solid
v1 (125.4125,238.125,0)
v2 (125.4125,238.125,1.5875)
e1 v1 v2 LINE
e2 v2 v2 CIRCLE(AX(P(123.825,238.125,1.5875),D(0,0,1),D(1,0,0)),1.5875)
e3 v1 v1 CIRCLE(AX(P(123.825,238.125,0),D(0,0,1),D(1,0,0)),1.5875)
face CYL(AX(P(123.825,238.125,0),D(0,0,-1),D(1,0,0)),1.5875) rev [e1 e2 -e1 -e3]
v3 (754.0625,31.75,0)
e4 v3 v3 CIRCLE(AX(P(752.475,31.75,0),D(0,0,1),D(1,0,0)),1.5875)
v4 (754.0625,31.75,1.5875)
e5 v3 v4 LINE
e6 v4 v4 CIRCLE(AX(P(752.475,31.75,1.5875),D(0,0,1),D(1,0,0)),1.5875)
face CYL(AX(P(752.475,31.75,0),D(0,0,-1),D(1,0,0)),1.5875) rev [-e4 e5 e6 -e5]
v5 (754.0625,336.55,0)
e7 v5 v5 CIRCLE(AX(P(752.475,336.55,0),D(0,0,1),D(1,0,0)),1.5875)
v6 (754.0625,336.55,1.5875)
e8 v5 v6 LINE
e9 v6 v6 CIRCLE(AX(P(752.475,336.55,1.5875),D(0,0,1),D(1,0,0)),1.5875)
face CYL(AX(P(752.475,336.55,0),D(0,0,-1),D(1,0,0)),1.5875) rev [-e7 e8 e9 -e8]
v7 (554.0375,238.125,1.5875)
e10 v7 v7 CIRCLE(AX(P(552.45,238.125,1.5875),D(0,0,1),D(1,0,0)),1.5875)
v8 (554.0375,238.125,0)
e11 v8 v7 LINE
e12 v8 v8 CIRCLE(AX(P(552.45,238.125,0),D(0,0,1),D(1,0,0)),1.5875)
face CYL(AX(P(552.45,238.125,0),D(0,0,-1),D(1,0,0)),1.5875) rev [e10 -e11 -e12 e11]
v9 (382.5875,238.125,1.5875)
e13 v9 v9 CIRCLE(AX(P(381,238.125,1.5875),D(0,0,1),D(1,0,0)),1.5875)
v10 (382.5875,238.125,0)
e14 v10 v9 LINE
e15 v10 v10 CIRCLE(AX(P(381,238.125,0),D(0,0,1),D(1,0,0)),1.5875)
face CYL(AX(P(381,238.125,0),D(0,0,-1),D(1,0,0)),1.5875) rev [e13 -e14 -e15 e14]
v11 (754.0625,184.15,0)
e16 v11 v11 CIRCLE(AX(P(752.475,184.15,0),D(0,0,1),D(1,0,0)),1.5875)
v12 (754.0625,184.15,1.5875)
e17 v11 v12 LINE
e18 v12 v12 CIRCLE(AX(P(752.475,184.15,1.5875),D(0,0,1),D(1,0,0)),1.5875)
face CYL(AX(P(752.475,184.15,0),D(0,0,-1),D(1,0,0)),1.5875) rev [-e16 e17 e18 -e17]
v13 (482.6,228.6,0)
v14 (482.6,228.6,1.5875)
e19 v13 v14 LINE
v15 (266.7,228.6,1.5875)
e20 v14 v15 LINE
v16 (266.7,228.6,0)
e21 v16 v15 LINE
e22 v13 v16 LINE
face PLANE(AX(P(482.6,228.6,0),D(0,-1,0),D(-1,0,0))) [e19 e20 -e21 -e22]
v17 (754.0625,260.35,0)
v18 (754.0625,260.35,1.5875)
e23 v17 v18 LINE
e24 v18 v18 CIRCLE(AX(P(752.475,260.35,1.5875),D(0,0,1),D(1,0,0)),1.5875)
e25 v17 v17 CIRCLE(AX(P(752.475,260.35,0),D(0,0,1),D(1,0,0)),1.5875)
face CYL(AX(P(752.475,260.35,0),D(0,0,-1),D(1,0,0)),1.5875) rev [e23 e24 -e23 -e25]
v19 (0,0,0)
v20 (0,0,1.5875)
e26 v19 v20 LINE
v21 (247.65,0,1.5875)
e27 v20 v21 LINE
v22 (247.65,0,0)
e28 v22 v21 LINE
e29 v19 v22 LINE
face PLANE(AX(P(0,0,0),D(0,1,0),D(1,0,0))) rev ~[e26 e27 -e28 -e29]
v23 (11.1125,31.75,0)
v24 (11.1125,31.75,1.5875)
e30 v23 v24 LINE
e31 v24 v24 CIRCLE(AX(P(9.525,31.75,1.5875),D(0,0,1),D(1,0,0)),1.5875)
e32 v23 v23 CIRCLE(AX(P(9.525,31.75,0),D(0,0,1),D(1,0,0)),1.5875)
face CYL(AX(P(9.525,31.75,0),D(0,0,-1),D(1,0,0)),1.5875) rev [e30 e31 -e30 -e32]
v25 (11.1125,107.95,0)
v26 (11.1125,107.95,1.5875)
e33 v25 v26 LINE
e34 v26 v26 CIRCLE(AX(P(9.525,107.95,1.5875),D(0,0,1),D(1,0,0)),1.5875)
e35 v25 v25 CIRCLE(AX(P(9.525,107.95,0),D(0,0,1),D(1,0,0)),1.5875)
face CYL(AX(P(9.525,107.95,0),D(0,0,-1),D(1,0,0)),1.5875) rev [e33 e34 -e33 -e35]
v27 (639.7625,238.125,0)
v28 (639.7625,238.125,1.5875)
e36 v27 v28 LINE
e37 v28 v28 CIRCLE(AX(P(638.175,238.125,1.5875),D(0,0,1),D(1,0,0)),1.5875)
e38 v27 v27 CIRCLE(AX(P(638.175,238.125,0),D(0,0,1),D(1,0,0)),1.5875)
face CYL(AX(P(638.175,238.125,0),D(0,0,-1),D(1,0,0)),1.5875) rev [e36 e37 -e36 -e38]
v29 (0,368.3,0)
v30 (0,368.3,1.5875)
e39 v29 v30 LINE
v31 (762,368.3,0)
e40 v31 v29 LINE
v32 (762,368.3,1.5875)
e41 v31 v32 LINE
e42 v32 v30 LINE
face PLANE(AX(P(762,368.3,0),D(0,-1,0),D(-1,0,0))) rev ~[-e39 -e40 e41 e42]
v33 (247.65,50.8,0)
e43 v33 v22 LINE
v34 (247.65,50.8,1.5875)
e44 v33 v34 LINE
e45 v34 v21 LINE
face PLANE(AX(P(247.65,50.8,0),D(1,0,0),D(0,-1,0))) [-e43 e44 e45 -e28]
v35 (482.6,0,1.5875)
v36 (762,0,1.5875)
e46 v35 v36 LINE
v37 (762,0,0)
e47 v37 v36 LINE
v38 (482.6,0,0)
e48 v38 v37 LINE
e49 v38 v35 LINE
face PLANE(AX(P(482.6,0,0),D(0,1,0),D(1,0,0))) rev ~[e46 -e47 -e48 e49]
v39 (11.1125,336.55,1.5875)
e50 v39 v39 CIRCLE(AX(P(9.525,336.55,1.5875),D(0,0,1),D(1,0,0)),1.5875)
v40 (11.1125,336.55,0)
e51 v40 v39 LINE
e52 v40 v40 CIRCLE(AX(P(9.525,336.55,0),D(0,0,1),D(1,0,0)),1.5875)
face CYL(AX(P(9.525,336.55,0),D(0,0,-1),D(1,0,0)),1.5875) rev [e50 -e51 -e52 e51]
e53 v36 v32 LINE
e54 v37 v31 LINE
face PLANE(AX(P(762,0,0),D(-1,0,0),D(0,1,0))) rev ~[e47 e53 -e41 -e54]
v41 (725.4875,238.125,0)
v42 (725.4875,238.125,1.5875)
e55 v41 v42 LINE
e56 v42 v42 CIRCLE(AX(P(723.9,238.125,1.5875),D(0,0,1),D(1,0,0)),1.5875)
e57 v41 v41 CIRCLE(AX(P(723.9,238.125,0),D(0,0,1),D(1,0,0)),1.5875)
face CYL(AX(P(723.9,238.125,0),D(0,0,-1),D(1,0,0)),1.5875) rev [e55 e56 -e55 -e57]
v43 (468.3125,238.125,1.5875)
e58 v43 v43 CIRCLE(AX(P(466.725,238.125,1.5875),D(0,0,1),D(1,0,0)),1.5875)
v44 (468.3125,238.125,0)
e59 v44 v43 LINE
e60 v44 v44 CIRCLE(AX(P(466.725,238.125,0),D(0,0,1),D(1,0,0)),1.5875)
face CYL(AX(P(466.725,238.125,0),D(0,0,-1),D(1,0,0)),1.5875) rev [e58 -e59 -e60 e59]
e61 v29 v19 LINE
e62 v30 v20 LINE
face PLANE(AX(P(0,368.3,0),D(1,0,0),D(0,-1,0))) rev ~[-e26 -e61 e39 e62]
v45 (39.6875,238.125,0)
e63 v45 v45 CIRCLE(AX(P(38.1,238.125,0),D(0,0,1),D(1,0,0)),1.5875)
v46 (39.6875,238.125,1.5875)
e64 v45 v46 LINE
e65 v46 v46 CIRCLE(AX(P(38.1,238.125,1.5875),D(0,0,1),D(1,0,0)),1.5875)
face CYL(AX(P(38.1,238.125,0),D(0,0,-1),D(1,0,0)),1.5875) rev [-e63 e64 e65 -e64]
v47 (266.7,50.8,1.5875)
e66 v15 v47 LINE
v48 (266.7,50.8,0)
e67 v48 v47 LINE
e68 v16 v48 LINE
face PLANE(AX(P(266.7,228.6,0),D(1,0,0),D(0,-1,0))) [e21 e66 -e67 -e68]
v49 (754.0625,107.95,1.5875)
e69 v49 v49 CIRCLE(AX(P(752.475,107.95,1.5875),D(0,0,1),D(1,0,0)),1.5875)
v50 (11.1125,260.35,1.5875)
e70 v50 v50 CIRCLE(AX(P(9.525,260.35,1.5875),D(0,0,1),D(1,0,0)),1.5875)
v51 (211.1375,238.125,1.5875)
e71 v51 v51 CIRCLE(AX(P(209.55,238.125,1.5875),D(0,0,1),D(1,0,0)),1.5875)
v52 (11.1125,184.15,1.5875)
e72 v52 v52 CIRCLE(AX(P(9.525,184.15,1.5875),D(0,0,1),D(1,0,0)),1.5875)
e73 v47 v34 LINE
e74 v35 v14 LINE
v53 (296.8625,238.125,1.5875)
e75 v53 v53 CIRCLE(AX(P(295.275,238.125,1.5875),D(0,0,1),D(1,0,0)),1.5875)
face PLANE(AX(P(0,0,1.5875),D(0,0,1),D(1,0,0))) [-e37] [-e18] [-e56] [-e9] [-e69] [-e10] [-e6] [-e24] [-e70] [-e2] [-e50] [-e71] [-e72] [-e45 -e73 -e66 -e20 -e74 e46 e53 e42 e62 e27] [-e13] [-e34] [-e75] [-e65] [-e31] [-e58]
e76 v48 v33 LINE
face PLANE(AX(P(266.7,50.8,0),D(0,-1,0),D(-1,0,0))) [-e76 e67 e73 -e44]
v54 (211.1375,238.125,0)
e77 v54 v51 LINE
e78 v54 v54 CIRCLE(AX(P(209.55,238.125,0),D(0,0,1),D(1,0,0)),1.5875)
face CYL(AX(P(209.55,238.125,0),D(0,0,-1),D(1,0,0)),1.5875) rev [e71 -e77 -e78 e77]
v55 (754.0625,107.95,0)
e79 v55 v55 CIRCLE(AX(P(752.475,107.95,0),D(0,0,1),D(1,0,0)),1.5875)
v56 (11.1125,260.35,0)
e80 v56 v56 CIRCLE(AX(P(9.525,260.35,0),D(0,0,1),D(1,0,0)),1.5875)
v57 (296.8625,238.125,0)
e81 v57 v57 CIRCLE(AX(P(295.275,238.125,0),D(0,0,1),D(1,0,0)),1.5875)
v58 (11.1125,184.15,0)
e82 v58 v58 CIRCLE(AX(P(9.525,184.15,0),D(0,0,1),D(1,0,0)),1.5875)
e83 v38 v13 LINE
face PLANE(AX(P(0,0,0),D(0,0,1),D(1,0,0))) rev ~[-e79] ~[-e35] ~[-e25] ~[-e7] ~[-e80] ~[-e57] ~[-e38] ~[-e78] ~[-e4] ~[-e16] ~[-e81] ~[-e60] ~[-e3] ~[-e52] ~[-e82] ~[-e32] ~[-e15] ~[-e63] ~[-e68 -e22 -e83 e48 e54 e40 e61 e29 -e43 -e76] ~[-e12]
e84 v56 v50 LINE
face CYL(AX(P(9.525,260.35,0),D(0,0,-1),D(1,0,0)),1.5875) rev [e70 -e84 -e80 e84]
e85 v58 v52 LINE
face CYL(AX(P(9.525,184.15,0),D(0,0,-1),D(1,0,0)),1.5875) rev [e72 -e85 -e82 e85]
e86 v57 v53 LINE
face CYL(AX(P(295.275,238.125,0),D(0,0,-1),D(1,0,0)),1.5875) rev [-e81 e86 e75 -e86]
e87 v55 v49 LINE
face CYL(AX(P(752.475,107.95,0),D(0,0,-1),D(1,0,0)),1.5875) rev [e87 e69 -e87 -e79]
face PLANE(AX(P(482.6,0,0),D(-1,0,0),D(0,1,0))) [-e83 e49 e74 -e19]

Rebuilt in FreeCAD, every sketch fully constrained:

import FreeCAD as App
import Part
import Sketcher
Q = App.Units.Quantity

doc = App.newDocument("Part")
body = doc.addObject("PartDesign::Body", "Body")

sketch1 = body.newObject("Sketcher::SketchObject", "Sketch")
sketch1.AttachmentSupport = (doc.getObject("XY_Plane"), [""])
sketch1.MapMode = "FlatFace"
sketch1.addGeometry(Part.LineSegment(App.Vector(0, 368.3, 0), App.Vector(0, 0, 0)), False)
sketch1.addGeometry(Part.LineSegment(App.Vector(0, 0, 0), App.Vector(247.7, 0, 0)), False)
sketch1.addGeometry(Part.LineSegment(App.Vector(247.7, 0, 0), App.Vector(247.7, 50.8, 0)), False)
sketch1.addGeometry(Part.LineSegment(App.Vector(247.7, 50.8, 0), App.Vector(266.7, 50.8, 0)), False)
sketch1.addGeometry(Part.LineSegment(App.Vector(266.7, 50.8, 0), App.Vector(266.7, 228.6, 0)), False)
sketch1.addGeometry(Part.LineSegment(App.Vector(266.7, 228.6, 0), App.Vector(482.6, 228.6, 0)), False)
sketch1.addGeometry(Part.LineSegment(App.Vector(482.6, 228.6, 0), App.Vector(482.6, 0, 0)), False)
sketch1.addGeometry(Part.LineSegment(App.Vector(482.6, 0, 0), App.Vector(762, 0, 0)), False)
sketch1.addGeometry(Part.LineSegment(App.Vector(762, 0, 0), App.Vector(762, 368.3, 0)), False)
sketch1.addGeometry(Part.LineSegment(App.Vector(762, 368.3, 0), App.Vector(0, 368.3, 0)), False)
sketch1.addGeometry(Part.Circle(App.Vector(9.5, 31.8, 0), App.Vector(0, 0, 1), 1.6), False)
sketch1.addGeometry(Part.Circle(App.Vector(9.5, 108, 0), App.Vector(0, 0, 1), 1.6), False)
sketch1.addGeometry(Part.Circle(App.Vector(752.5, 31.8, 0), App.Vector(0, 0, 1), 1.6), False)
sketch1.addGeometry(Part.Circle(App.Vector(752.5, 108, 0), App.Vector(0, 0, 1), 1.6), False)
sketch1.addGeometry(Part.Circle(App.Vector(9.5, 184.2, 0), App.Vector(0, 0, 1), 1.6), False)
sketch1.addGeometry(Part.Circle(App.Vector(38.1, 238.1, 0), App.Vector(0, 0, 1), 1.6), False)
sketch1.addGeometry(Part.Circle(App.Vector(9.5, 260.4, 0), App.Vector(0, 0, 1), 1.6), False)
sketch1.addGeometry(Part.Circle(App.Vector(123.8, 238.1, 0), App.Vector(0, 0, 1), 1.6), False)
sketch1.addGeometry(Part.Circle(App.Vector(209.6, 238.1, 0), App.Vector(0, 0, 1), 1.6), False)
sketch1.addGeometry(Part.Circle(App.Vector(295.3, 238.1, 0), App.Vector(0, 0, 1), 1.6), False)
sketch1.addGeometry(Part.Circle(App.Vector(9.5, 336.6, 0), App.Vector(0, 0, 1), 1.6), False)
sketch1.addGeometry(Part.Circle(App.Vector(381, 238.1, 0), App.Vector(0, 0, 1), 1.6), False)
sketch1.addGeometry(Part.Circle(App.Vector(466.7, 238.1, 0), App.Vector(0, 0, 1), 1.6), False)
sketch1.addGeometry(Part.Circle(App.Vector(552.5, 238.1, 0), App.Vector(0, 0, 1), 1.6), False)
sketch1.addGeometry(Part.Circle(App.Vector(752.5, 184.2, 0), App.Vector(0, 0, 1), 1.6), False)
sketch1.addGeometry(Part.Circle(App.Vector(638.2, 238.1, 0), App.Vector(0, 0, 1), 1.6), False)
sketch1.addGeometry(Part.Circle(App.Vector(723.9, 238.1, 0), App.Vector(0, 0, 1), 1.6), False)
sketch1.addGeometry(Part.Circle(App.Vector(752.5, 260.4, 0), App.Vector(0, 0, 1), 1.6), False)
sketch1.addGeometry(Part.Circle(App.Vector(752.5, 336.6, 0), App.Vector(0, 0, 1), 1.6), False)
sketch1.addConstraint(Sketcher.Constraint("Coincident", 0, 2, 1, 1))
sketch1.addConstraint(Sketcher.Constraint("Coincident", 1, 2, 2, 1))
sketch1.addConstraint(Sketcher.Constraint("Coincident", 2, 2, 3, 1))
sketch1.addConstraint(Sketcher.Constraint("Coincident", 3, 2, 4, 1))
sketch1.addConstraint(Sketcher.Constraint("Coincident", 4, 2, 5, 1))
sketch1.addConstraint(Sketcher.Constraint("Coincident", 5, 2, 6, 1))
sketch1.addConstraint(Sketcher.Constraint("Coincident", 6, 2, 7, 1))
sketch1.addConstraint(Sketcher.Constraint("Coincident", 7, 2, 8, 1))
sketch1.addConstraint(Sketcher.Constraint("Coincident", 8, 2, 9, 1))
sketch1.addConstraint(Sketcher.Constraint("Coincident", 9, 2, 0, 1))
sketch1.addConstraint(Sketcher.Constraint("Vertical", 0))
sketch1.addConstraint(Sketcher.Constraint("Horizontal", 1))
sketch1.addConstraint(Sketcher.Constraint("Vertical", 2))
sketch1.addConstraint(Sketcher.Constraint("Horizontal", 3))
sketch1.addConstraint(Sketcher.Constraint("Vertical", 4))
sketch1.addConstraint(Sketcher.Constraint("Horizontal", 5))
sketch1.addConstraint(Sketcher.Constraint("Vertical", 6))
sketch1.addConstraint(Sketcher.Constraint("Horizontal", 7))
sketch1.addConstraint(Sketcher.Constraint("Vertical", 8))
sketch1.addConstraint(Sketcher.Constraint("Horizontal", 9))
sketch1.addConstraint(Sketcher.Constraint("Coincident", 0, 2, -1, 1))
sketch1.addConstraint(Sketcher.Constraint("Equal", 10, 11))
sketch1.addConstraint(Sketcher.Constraint("Equal", 11, 12))
sketch1.addConstraint(Sketcher.Constraint("Equal", 12, 13))
sketch1.addConstraint(Sketcher.Constraint("Equal", 13, 14))
sketch1.addConstraint(Sketcher.Constraint("Equal", 14, 15))
sketch1.addConstraint(Sketcher.Constraint("Equal", 15, 16))
sketch1.addConstraint(Sketcher.Constraint("Equal", 16, 17))
sketch1.addConstraint(Sketcher.Constraint("Equal", 17, 18))
sketch1.addConstraint(Sketcher.Constraint("Equal", 18, 19))
sketch1.addConstraint(Sketcher.Constraint("Equal", 19, 20))
sketch1.addConstraint(Sketcher.Constraint("Equal", 20, 21))
sketch1.addConstraint(Sketcher.Constraint("Equal", 21, 22))
sketch1.addConstraint(Sketcher.Constraint("Equal", 22, 23))
sketch1.addConstraint(Sketcher.Constraint("Equal", 23, 24))
sketch1.addConstraint(Sketcher.Constraint("Equal", 24, 25))
sketch1.addConstraint(Sketcher.Constraint("Equal", 25, 26))
sketch1.addConstraint(Sketcher.Constraint("Equal", 26, 27))
sketch1.addConstraint(Sketcher.Constraint("Equal", 27, 28))
sketch1.addConstraint(Sketcher.Constraint("PointOnObject", 6, 2, -1))
sketch1.addConstraint(Sketcher.Constraint("Horizontal", 10, 3, 12, 3))
sketch1.addConstraint(Sketcher.Constraint("Horizontal", 11, 3, 13, 3))
sketch1.addConstraint(Sketcher.Constraint("Horizontal", 15, 3, 17, 3))
sketch1.addConstraint(Sketcher.Constraint("Horizontal", 17, 3, 18, 3))
sketch1.addConstraint(Sketcher.Constraint("Horizontal", 18, 3, 19, 3))
sketch1.addConstraint(Sketcher.Constraint("Horizontal", 19, 3, 21, 3))
sketch1.addConstraint(Sketcher.Constraint("Horizontal", 21, 3, 22, 3))
sketch1.addConstraint(Sketcher.Constraint("Horizontal", 22, 3, 23, 3))
sketch1.addConstraint(Sketcher.Constraint("Horizontal", 14, 3, 24, 3))
sketch1.addConstraint(Sketcher.Constraint("Horizontal", 23, 3, 25, 3))
sketch1.addConstraint(Sketcher.Constraint("Horizontal", 25, 3, 26, 3))
sketch1.addConstraint(Sketcher.Constraint("Horizontal", 16, 3, 27, 3))
sketch1.addConstraint(Sketcher.Constraint("Horizontal", 20, 3, 28, 3))
sketch1.addConstraint(Sketcher.Constraint("Vertical", 10, 3, 11, 3))
sketch1.addConstraint(Sketcher.Constraint("Vertical", 12, 3, 13, 3))
sketch1.addConstraint(Sketcher.Constraint("Vertical", 11, 3, 14, 3))
sketch1.addConstraint(Sketcher.Constraint("Vertical", 14, 3, 16, 3))
sketch1.addConstraint(Sketcher.Constraint("Vertical", 16, 3, 20, 3))
sketch1.addConstraint(Sketcher.Constraint("Vertical", 13, 3, 24, 3))
sketch1.addConstraint(Sketcher.Constraint("Vertical", 24, 3, 27, 3))
sketch1.addConstraint(Sketcher.Constraint("Vertical", 27, 3, 28, 3))
sketch1.addConstraint(Sketcher.Constraint("DistanceX", 9, 2, 9, 1, Q("30 in")))
sketch1.addConstraint(Sketcher.Constraint("DistanceY", 2, 1, 2, 2, Q("2 in")))
sketch1.addConstraint(Sketcher.Constraint("Diameter", 10, Q("0.125 in")))
sketch1.addConstraint(Sketcher.Constraint("DistanceY", 0, 2, 0, 1, Q("14.5 in")))
sketch1.addConstraint(Sketcher.Constraint("DistanceY", 10, 3, 11, 3, Q("3 in")))
sketch1.addConstraint(Sketcher.Constraint("DistanceY", 11, 3, 14, 3, Q("3 in")))
sketch1.addConstraint(Sketcher.Constraint("DistanceY", 14, 3, 16, 3, Q("3 in")))
sketch1.addConstraint(Sketcher.Constraint("DistanceY", 16, 3, 20, 3, Q("3 in")))
sketch1.addConstraint(Sketcher.Constraint("DistanceX", 21, 3, 5, 2, Q("4 in")))
sketch1.addConstraint(Sketcher.Constraint("DistanceX", 3, 1, 3, 2, Q("0.75 in")))
sketch1.addConstraint(Sketcher.Constraint("DistanceX", 16, 3, 17, 3, Q("4.5 in")))
sketch1.addConstraint(Sketcher.Constraint("DistanceX", 25, 3, 24, 3, Q("4.5 in")))
sketch1.addConstraint(Sketcher.Constraint("DistanceX", 3, 2, 21, 3, Q("4.5 in")))
sketch1.addConstraint(Sketcher.Constraint("DistanceX", 7, 1, 7, 2, Q("11 in")))
sketch1.addConstraint(Sketcher.Constraint("DistanceY", 4, 1, 4, 2, Q("7 in")))
sketch1.addConstraint(Sketcher.Constraint("DistanceX", -1, 1, 10, 3, Q("0.375 in")))
sketch1.addConstraint(Sketcher.Constraint("DistanceX", 15, 3, 17, 3, Q("3.375 in")))
sketch1.addConstraint(Sketcher.Constraint("DistanceX", 17, 3, 18, 3, Q("3.375 in")))
sketch1.addConstraint(Sketcher.Constraint("DistanceX", 18, 3, 19, 3, Q("3.375 in")))
sketch1.addConstraint(Sketcher.Constraint("DistanceX", 21, 3, 22, 3, Q("3.375 in")))
sketch1.addConstraint(Sketcher.Constraint("DistanceX", 22, 3, 23, 3, Q("3.375 in")))
sketch1.addConstraint(Sketcher.Constraint("DistanceX", 23, 3, 25, 3, Q("3.375 in")))
sketch1.addConstraint(Sketcher.Constraint("DistanceX", 25, 3, 26, 3, Q("3.375 in")))
sketch1.addConstraint(Sketcher.Constraint("DistanceY", 4, 2, 19, 3, Q("0.375 in")))
sketch1.addConstraint(Sketcher.Constraint("DistanceY", -1, 1, 10, 3, Q("1.25 in")))
pad1 = body.newObject("PartDesign::Pad", "Pad")
pad1.Profile = sketch1
pad1.Length = Q("0.0625 in")

doc.recompute()
